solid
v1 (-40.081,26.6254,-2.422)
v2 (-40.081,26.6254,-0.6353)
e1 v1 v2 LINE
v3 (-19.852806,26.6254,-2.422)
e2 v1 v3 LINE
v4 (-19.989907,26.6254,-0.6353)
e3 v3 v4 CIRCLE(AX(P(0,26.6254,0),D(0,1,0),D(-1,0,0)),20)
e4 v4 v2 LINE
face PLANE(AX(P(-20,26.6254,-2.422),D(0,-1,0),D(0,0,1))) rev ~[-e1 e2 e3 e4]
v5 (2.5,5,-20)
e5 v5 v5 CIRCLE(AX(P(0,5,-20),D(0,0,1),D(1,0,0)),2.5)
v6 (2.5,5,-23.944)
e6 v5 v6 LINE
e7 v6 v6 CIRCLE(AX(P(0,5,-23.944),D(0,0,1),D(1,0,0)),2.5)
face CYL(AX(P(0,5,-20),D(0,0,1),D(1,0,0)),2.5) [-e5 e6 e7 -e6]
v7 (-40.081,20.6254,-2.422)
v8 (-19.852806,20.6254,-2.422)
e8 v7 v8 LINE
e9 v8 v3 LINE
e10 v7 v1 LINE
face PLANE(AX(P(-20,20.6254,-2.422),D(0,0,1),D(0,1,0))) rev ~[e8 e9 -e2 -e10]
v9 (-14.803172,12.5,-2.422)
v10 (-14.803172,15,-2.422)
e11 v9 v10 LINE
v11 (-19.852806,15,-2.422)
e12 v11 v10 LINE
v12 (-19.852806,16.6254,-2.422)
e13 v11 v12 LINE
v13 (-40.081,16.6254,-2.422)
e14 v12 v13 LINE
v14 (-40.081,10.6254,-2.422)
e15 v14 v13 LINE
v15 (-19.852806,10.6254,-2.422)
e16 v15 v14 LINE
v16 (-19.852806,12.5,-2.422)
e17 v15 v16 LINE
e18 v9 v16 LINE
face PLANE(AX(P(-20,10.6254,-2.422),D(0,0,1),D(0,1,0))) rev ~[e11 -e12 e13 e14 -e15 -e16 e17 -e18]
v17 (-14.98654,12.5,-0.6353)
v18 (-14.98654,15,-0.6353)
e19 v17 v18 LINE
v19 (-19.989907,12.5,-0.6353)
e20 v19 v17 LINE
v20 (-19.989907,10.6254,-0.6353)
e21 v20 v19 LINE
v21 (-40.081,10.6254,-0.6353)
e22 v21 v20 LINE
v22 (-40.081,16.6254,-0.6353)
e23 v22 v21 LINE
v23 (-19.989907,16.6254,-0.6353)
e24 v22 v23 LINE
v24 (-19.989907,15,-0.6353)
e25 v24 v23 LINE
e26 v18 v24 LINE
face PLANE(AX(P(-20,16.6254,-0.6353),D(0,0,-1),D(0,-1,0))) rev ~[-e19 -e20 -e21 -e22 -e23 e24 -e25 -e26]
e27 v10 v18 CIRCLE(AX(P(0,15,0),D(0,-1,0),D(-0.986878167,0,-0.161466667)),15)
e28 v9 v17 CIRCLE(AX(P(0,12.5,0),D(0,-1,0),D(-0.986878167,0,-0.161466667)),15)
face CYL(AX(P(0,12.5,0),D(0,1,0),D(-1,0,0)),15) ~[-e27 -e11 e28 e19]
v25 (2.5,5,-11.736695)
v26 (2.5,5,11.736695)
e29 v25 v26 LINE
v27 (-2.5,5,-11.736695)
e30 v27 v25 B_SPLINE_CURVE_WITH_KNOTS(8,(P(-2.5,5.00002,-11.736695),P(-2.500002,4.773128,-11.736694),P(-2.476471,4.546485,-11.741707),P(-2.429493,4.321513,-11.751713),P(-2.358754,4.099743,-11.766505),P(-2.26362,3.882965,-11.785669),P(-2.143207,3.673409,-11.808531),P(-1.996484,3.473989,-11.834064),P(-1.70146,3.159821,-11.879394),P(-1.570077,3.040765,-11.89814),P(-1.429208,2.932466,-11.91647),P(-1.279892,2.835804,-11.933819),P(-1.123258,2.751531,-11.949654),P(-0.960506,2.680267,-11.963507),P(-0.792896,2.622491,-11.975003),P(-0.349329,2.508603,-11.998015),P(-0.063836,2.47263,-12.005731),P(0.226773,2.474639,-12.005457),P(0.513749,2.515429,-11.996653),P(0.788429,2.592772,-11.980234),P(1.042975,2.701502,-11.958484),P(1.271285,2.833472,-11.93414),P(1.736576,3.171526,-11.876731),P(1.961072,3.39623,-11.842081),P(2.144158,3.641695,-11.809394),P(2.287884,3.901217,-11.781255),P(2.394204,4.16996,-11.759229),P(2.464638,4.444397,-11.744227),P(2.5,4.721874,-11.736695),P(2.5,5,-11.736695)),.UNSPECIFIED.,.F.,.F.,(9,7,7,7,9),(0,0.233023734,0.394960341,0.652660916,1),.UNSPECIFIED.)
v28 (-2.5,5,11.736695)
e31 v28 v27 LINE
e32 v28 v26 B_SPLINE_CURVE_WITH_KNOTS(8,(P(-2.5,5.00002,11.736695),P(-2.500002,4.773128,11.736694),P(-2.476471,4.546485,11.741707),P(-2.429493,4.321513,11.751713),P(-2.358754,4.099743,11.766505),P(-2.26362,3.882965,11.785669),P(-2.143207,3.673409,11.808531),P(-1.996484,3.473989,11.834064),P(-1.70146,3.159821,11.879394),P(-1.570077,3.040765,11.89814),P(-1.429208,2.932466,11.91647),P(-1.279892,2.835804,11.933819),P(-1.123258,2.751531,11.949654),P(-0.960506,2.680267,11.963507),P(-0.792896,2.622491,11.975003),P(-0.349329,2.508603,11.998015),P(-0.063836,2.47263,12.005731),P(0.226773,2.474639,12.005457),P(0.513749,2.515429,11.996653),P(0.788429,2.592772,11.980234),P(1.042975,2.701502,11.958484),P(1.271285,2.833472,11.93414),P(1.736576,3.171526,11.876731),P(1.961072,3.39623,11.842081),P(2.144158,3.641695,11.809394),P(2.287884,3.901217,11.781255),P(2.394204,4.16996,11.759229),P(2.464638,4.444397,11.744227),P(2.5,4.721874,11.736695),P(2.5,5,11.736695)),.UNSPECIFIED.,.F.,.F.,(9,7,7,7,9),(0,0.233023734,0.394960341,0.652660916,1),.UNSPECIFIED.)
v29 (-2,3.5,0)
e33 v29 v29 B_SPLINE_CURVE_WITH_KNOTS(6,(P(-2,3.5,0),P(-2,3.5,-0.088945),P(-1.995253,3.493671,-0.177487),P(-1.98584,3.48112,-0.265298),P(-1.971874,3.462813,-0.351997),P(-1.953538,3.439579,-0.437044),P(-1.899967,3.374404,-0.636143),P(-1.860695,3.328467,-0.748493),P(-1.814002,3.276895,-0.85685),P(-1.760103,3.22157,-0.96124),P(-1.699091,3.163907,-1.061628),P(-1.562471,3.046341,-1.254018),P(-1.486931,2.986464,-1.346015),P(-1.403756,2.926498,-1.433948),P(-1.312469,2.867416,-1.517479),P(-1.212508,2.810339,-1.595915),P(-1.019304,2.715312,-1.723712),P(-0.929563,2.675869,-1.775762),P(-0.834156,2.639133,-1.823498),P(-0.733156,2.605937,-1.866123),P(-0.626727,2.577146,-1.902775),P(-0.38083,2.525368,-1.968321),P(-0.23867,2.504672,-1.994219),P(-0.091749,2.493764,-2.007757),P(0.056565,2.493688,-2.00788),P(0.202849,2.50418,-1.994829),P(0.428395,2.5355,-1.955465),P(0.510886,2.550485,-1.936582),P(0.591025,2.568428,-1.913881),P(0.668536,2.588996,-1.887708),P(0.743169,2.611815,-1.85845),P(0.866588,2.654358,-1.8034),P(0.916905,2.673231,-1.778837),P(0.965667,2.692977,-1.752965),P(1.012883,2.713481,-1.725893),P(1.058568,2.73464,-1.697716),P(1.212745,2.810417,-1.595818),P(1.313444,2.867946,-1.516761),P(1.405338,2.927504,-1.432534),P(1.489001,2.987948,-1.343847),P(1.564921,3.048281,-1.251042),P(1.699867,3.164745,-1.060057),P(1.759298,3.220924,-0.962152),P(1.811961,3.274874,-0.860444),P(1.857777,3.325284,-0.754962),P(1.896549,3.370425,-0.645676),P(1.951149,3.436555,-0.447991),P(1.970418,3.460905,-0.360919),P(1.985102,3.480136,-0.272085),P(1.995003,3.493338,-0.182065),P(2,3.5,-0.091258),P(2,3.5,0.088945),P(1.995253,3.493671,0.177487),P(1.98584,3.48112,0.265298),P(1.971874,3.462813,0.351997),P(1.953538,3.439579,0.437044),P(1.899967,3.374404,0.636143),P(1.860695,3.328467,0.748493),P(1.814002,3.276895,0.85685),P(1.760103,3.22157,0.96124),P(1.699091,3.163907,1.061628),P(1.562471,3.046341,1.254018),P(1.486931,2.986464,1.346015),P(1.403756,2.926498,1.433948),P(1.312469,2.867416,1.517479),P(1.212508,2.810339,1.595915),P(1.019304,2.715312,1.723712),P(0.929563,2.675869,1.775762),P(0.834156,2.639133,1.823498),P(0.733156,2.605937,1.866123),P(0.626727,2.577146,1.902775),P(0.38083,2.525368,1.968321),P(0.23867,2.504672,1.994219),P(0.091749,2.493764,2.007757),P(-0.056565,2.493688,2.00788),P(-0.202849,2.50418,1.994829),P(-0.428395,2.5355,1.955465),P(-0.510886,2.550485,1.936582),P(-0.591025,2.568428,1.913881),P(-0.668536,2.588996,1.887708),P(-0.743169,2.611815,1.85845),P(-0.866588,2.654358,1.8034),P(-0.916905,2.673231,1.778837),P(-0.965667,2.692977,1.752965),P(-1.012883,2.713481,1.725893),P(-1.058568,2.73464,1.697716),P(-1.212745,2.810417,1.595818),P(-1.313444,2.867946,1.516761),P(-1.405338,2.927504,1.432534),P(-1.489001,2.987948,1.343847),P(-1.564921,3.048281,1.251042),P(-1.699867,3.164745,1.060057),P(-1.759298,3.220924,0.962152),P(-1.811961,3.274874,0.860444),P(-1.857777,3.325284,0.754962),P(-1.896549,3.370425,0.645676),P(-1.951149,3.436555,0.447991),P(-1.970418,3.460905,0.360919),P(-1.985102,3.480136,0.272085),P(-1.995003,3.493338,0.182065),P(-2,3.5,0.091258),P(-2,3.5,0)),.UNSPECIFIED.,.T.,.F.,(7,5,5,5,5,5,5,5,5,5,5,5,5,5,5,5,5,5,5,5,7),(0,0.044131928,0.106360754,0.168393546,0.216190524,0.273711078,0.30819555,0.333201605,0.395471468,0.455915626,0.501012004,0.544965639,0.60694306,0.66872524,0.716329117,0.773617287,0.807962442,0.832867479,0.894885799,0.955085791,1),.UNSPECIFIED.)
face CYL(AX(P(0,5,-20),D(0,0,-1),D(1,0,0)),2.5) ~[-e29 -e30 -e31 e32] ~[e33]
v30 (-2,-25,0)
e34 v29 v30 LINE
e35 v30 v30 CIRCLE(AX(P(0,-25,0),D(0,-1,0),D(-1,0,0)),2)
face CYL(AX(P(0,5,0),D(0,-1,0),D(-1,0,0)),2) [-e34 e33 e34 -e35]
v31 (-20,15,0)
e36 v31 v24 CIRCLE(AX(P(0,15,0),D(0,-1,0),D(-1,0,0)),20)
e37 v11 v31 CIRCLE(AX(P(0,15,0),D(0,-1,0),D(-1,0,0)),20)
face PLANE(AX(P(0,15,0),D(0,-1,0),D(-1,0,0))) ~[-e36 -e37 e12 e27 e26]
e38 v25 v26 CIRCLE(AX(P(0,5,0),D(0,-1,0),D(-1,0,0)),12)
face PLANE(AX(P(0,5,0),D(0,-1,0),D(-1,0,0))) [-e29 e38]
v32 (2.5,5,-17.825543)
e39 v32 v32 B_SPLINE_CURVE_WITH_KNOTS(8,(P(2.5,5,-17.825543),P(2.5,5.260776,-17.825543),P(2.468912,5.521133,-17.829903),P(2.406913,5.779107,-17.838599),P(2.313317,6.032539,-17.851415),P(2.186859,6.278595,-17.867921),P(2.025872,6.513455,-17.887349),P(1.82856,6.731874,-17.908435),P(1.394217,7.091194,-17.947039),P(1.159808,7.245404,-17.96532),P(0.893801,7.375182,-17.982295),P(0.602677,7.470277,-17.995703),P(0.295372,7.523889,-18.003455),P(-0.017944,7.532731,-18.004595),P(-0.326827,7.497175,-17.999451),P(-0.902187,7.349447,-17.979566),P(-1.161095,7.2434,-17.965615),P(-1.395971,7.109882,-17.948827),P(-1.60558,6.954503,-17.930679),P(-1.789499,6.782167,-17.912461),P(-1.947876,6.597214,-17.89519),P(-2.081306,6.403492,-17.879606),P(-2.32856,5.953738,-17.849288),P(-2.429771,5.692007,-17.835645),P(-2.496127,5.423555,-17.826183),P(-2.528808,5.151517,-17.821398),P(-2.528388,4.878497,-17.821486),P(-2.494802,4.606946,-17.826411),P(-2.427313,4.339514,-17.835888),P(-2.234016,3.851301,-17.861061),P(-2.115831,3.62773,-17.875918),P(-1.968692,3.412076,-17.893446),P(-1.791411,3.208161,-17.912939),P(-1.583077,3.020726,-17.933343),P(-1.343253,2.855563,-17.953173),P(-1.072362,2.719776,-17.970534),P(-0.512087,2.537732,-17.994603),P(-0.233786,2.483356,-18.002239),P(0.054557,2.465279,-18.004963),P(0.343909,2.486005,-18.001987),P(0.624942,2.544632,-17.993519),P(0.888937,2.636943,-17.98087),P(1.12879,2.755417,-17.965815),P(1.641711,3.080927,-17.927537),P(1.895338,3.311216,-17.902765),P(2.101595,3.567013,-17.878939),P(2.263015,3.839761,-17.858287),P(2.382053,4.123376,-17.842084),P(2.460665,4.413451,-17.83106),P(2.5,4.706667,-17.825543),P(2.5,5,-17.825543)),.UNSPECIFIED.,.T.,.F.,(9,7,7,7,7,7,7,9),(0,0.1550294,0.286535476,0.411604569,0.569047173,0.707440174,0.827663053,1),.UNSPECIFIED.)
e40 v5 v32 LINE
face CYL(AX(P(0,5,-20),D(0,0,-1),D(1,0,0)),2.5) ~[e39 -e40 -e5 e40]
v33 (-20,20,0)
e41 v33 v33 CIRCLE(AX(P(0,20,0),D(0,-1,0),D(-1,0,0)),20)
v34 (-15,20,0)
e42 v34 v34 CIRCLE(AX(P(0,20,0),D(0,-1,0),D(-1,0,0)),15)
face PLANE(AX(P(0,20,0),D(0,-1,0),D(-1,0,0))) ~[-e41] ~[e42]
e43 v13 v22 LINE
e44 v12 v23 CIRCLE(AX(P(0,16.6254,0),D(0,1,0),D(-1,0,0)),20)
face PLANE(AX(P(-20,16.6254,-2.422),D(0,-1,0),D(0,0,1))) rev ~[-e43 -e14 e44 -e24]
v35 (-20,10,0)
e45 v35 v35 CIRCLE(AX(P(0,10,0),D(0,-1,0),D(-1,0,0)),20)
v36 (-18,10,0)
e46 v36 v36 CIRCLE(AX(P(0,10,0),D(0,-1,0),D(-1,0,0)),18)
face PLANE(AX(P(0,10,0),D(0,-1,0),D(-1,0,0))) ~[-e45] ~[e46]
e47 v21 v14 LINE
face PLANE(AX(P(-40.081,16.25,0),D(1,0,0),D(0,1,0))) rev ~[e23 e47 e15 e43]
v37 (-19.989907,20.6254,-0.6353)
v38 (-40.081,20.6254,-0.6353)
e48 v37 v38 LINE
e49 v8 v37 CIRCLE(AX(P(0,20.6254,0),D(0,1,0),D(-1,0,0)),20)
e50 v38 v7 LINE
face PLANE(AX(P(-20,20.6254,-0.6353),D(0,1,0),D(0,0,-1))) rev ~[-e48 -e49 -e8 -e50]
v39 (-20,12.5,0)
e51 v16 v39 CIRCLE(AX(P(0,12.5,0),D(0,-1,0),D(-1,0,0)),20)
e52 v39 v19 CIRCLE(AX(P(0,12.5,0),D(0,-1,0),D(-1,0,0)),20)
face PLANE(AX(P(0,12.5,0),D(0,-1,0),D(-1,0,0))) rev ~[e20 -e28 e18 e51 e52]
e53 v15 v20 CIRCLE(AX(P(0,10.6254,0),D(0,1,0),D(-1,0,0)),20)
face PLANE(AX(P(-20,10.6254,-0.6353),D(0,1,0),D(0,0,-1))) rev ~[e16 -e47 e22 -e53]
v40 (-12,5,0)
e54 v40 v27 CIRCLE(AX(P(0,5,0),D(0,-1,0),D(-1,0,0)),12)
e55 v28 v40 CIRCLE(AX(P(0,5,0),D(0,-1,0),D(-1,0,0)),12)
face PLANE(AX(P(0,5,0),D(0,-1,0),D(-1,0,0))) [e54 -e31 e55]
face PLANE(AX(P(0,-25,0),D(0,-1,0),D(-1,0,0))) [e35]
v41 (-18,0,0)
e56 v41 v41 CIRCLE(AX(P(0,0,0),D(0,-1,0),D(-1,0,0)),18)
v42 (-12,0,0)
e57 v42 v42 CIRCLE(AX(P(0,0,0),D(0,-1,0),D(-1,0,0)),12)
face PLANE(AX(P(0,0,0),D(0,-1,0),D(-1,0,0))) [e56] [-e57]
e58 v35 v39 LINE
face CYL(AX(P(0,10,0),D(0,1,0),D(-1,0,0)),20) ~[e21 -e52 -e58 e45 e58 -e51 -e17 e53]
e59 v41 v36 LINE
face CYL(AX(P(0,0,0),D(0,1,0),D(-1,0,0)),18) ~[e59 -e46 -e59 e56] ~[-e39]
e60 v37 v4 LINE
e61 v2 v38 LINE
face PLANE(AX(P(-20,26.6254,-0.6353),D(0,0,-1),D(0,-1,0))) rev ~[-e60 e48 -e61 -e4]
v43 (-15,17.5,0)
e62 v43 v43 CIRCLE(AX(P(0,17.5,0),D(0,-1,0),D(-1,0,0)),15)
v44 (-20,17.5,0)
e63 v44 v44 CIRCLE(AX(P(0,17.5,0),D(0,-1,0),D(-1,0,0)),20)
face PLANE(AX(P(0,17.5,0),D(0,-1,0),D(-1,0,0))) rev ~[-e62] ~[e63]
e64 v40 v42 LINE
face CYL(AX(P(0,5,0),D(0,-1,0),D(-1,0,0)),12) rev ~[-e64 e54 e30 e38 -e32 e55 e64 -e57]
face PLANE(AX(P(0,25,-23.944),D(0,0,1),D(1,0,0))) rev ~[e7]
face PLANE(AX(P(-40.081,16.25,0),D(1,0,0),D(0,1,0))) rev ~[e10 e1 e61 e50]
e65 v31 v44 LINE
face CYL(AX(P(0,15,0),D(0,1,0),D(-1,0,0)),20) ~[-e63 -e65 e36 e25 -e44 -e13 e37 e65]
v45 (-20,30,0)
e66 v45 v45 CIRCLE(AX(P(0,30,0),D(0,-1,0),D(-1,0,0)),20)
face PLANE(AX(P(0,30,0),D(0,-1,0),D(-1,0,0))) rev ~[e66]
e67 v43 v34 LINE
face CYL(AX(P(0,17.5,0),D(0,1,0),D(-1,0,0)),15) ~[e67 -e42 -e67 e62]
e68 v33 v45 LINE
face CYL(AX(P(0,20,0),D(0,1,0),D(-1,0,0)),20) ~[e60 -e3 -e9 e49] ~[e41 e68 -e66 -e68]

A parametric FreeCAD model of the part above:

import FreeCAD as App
import Part
import Sketcher


def add_polygon(sketch, points):
    """Adds a closed chain of lines whose ends are joined by coincident constraints."""
    first, n = sketch.GeometryCount, len(points)
    for a, b in zip(points, points[1:] + points[:1]):
        sketch.addGeometry(Part.LineSegment(App.Vector(*a, 0), App.Vector(*b, 0)), False)
    for i in range(n):
        sketch.addConstraint(Sketcher.Constraint("Coincident", first + i, 2, first + (i + 1) % n, 1))

doc = App.newDocument("Part")
body = doc.addObject("PartDesign::Body", "Body")

# Sketch on XY plane
sketch1 = body.newObject("Sketcher::SketchObject", "Sketch")
sketch1.AttachmentSupport = (doc.getObject("XY_Plane"), [""])
sketch1.MapMode = "FlatFace"
add_polygon(sketch1, [(-18, 10), (-18, 0), (-12, 0), (-12, 5), (-2, 5), (-2, -25), (0, -25), (0, 30), (-20, 30), (-20, 20), (-15, 20), (-15, 17.5), (-20, 17.5), (-20, 15), (-15, 15), (-15, 12.5), (-20, 12.5), (-20, 10)])  # lines 0-17
sketch1.addConstraint(Sketcher.Constraint("Vertical", 0))
sketch1.addConstraint(Sketcher.Constraint("Horizontal", 1))
sketch1.addConstraint(Sketcher.Constraint("Vertical", 2))
sketch1.addConstraint(Sketcher.Constraint("Horizontal", 3))
sketch1.addConstraint(Sketcher.Constraint("Vertical", 4))
sketch1.addConstraint(Sketcher.Constraint("Horizontal", 5))
sketch1.addConstraint(Sketcher.Constraint("Vertical", 6))
sketch1.addConstraint(Sketcher.Constraint("Horizontal", 7))
sketch1.addConstraint(Sketcher.Constraint("Vertical", 8))
sketch1.addConstraint(Sketcher.Constraint("Horizontal", 9))
sketch1.addConstraint(Sketcher.Constraint("Vertical", 10))
sketch1.addConstraint(Sketcher.Constraint("Horizontal", 11))
sketch1.addConstraint(Sketcher.Constraint("Vertical", 12))
sketch1.addConstraint(Sketcher.Constraint("Horizontal", 13))
sketch1.addConstraint(Sketcher.Constraint("Vertical", 14))
sketch1.addConstraint(Sketcher.Constraint("Horizontal", 15))
sketch1.addConstraint(Sketcher.Constraint("Vertical", 16))
sketch1.addConstraint(Sketcher.Constraint("Horizontal", 17))
sketch1.addConstraint(Sketcher.Constraint("PointOnObject", 0, 2, -1))
sketch1.addConstraint(Sketcher.Constraint("PointOnObject", 5, 2, -2))
sketch1.addConstraint(Sketcher.Constraint("Vertical", 8, 2, 11, 2))
sketch1.addConstraint(Sketcher.Constraint("Vertical", 10, 2, 13, 2))
sketch1.addConstraint(Sketcher.Constraint("Vertical", 12, 2, 15, 2))
sketch1.addConstraint(Sketcher.Constraint("Equal", 5, 17))
sketch1.addConstraint(Sketcher.Constraint("Equal", 3, 0))
sketch1.addConstraint(Sketcher.Constraint("Equal", 15, 2))
sketch1.addConstraint(Sketcher.Constraint("Equal", 0, 8))
sketch1.addConstraint(Sketcher.Constraint("Equal", 10, 12))
sketch1.addConstraint(Sketcher.Constraint("Equal", 12, 14))
sketch1.addConstraint(Sketcher.Constraint("Equal", 14, 16))
sketch1.addConstraint(Sketcher.Constraint("DistanceX", 3, 1, 3, 2, 10.0))
sketch1.addConstraint(Sketcher.Constraint("DistanceX", 5, 1, 5, 2, 2.0))
sketch1.addConstraint(Sketcher.Constraint("DistanceX", 7, 2, 7, 1, 20.0))
sketch1.addConstraint(Sketcher.Constraint("DistanceX", 9, 1, 9, 2, 5.0))
sketch1.addConstraint(Sketcher.Constraint("DistanceY", 4, 2, 4, 1, 30.0))
sketch1.addConstraint(Sketcher.Constraint("DistanceY", 10, 2, 10, 1, 2.5))
revolution = body.newObject("PartDesign::Revolution", "Revolution")
revolution.Profile = sketch1
revolution.ReferenceAxis = (sketch1, ["V_Axis"])
revolution.Angle = 360

# Sketch on YZ plane
sketch2 = body.newObject("Sketcher::SketchObject", "Sketch001")
sketch2.AttachmentSupport = (doc.getObject("YZ_Plane"), [""])
sketch2.MapMode = "FlatFace"
sketch2.AttachmentOffset = App.Placement(App.Vector(0, 0, -20), App.Rotation())
add_polygon(sketch2, [(20.6, -0.6), (20.6, -2.4), (26.6, -2.4), (26.6, -0.6)])  # lines 0-3
add_polygon(sketch2, [(16.6, -2.4), (16.6, -0.6), (10.6, -0.6), (10.6, -2.4)])  # lines 4-7
sketch2.addConstraint(Sketcher.Constraint("Vertical", 0))
sketch2.addConstraint(Sketcher.Constraint("Horizontal", 1))
sketch2.addConstraint(Sketcher.Constraint("Vertical", 2))
sketch2.addConstraint(Sketcher.Constraint("Horizontal", 3))
sketch2.addConstraint(Sketcher.Constraint("Vertical", 4))
sketch2.addConstraint(Sketcher.Constraint("Horizontal", 5))
sketch2.addConstraint(Sketcher.Constraint("Vertical", 6))
sketch2.addConstraint(Sketcher.Constraint("Horizontal", 7))
sketch2.addConstraint(Sketcher.Constraint("Horizontal", 3, 2, 4, 2))
sketch2.addConstraint(Sketcher.Constraint("Horizontal", 1, 2, 6, 2))
sketch2.addConstraint(Sketcher.Constraint("Equal", 3, 5))
sketch2.addConstraint(Sketcher.Constraint("DistanceX", 1, 1, 1, 2, 6.0))
sketch2.addConstraint(Sketcher.Constraint("DistanceX", 4, 2, 2, 2, 10.0))
sketch2.addConstraint(Sketcher.Constraint("DistanceY", 0, 2, 0, 1, 1.7867))
sketch2.addConstraint(Sketcher.Constraint("DistanceY", 2, 2, -1, 1, 0.6353))
sketch2.addConstraint(Sketcher.Constraint("DistanceX", -1, 1, 0, 2, 20.6254))
pad1 = body.newObject("PartDesign::Pad", "Pad")
pad1.Profile = sketch2
pad1.Type = "TwoLengths"
pad1.Length = 21.1125
pad1.Length2 = 20.081

# Sketch on XY plane
sketch3 = body.newObject("Sketcher::SketchObject", "Sketch002")
sketch3.AttachmentSupport = (doc.getObject("XY_Plane"), [""])
sketch3.MapMode = "FlatFace"
sketch3.AttachmentOffset = App.Placement(App.Vector(0, 0, -20), App.Rotation())
sketch3.addGeometry(Part.Circle(App.Vector(0, 5, 0), App.Vector(0, 0, 1), 2.5), False)
sketch3.addConstraint(Sketcher.Constraint("PointOnObject", 0, 3, -2))
sketch3.addConstraint(Sketcher.Constraint("Diameter", 0, 5.0))
sketch3.addConstraint(Sketcher.Constraint("DistanceY", -1, 1, 0, 3, 5.0))
pad2 = body.newObject("PartDesign::Pad", "Pad001")
pad2.Profile = sketch3
pad2.Type = "TwoLengths"
pad2.Length = 36.4625
pad2.Length2 = 3.944

doc.recompute()
